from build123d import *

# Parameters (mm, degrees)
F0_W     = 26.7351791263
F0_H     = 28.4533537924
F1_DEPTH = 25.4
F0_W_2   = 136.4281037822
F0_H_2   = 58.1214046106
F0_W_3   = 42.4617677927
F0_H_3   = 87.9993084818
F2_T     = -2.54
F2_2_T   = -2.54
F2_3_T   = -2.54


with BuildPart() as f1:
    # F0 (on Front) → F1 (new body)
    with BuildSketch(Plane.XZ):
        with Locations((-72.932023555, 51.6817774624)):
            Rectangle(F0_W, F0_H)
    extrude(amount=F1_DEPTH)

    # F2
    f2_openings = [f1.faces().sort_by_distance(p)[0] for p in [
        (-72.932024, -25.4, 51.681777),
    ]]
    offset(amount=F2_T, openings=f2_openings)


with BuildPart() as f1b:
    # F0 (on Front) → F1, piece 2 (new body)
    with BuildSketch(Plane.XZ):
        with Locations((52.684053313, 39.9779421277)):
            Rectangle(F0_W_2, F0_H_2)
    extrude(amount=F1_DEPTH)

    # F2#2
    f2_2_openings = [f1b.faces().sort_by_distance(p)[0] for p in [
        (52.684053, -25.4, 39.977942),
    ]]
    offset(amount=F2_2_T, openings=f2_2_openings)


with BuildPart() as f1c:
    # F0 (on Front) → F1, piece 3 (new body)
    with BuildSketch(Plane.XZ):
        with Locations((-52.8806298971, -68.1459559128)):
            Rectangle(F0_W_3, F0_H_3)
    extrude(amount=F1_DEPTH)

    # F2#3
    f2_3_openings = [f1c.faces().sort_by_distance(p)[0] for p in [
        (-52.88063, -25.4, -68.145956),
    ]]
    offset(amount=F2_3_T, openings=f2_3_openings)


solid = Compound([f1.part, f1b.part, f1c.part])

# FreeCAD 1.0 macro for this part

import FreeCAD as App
import Part
import Sketcher
Q = App.Units.Quantity


def faces_at(feature, points):
    """Names of the faces that lie closest to the given points."""
    faces = feature.Shape.Faces
    near = lambda p: min(range(len(faces)), key=lambda i: faces[i].distToShape(Part.Vertex(*p))[0])
    return sorted({f"Face{near(p) + 1}" for p in points})


def add_polygon(sketch, points):
    """Adds a closed chain of lines whose ends are joined by coincident constraints."""
    first, n = sketch.GeometryCount, len(points)
    for a, b in zip(points, points[1:] + points[:1]):
        sketch.addGeometry(Part.LineSegment(App.Vector(*a, 0), App.Vector(*b, 0)), False)
    for i in range(n):
        sketch.addConstraint(Sketcher.Constraint("Coincident", first + i, 2, first + (i + 1) % n, 1))

doc = App.newDocument("Part")
body = doc.addObject("PartDesign::Body", "Body")

sketch1 = doc.addObject("Sketcher::SketchObject", "Sketch")
body.addObject(sketch1)
sketch1.AttachmentSupport = (doc.XZ_Plane, [""])
sketch1.MapMode = "FlatFace"
add_polygon(sketch1, [(-86.299613, 65.908454), (-86.299613, 37.455101), (-59.564434, 37.455101), (-59.564434, 65.908454)])
sketch1.addConstraint(Sketcher.Constraint("Vertical", 0))
sketch1.addConstraint(Sketcher.Constraint("Horizontal", 1))
sketch1.addConstraint(Sketcher.Constraint("Vertical", 2))
sketch1.addConstraint(Sketcher.Constraint("Horizontal", 3))
sketch1.addConstraint(Sketcher.Constraint("DistanceX", 1, 1, 1, 2, 26.735179))
sketch1.addConstraint(Sketcher.Constraint("DistanceY", -1, 1, 0, 2, 37.455101))
sketch1.addConstraint(Sketcher.Constraint("DistanceY", 0, 2, 0, 1, 28.453354))
sketch1.addConstraint(Sketcher.Constraint("DistanceX", 0, 2, -1, 1, 86.299613))
pad1 = doc.addObject("PartDesign::Pad", "Pad")
body.addObject(pad1)
pad1.Profile = sketch1
pad1.Length = Q("1 in")
doc.recompute()

thickness = doc.addObject("PartDesign::Thickness", "Thickness")
body.addObject(thickness)
thickness.Base = (pad1, faces_at(pad1, [(-72.932, -25.4, 51.682)]))
thickness.Value = Q("0.1 in")
thickness.Reversed = True
thickness.Join = "Arc"
body2 = doc.addObject("PartDesign::Body", "Body001")

sketch2 = doc.addObject("Sketcher::SketchObject", "Sketch001")
body2.addObject(sketch2)
sketch2.AttachmentSupport = (doc.getObject("XZ_Plane001"), [""])
sketch2.MapMode = "FlatFace"
add_polygon(sketch2, [(-15.529999, 69.038644), (-15.529999, 10.91724), (120.898105, 10.91724), (120.898105, 69.038644)])
sketch2.addConstraint(Sketcher.Constraint("Vertical", 0))
sketch2.addConstraint(Sketcher.Constraint("Horizontal", 1))
sketch2.addConstraint(Sketcher.Constraint("Vertical", 2))
sketch2.addConstraint(Sketcher.Constraint("Horizontal", 3))
sketch2.addConstraint(Sketcher.Constraint("DistanceX", 0, 2, -1, 1, 15.529999))
sketch2.addConstraint(Sketcher.Constraint("DistanceX", 1, 1, 1, 2, 136.428104))
sketch2.addConstraint(Sketcher.Constraint("DistanceY", 0, 2, 0, 1, 58.121405))
sketch2.addConstraint(Sketcher.Constraint("DistanceY", -1, 1, 0, 2, 10.91724))
pad2 = doc.addObject("PartDesign::Pad", "Pad001")
body2.addObject(pad2)
pad2.Profile = sketch2
pad2.Length = Q("1 in")
doc.recompute()

thickness2 = doc.addObject("PartDesign::Thickness", "Thickness001")
body2.addObject(thickness2)
thickness2.Base = (pad2, faces_at(pad2, [(52.684, -25.4, 39.978)]))
thickness2.Value = Q("0.1 in")
thickness2.Reversed = True
thickness2.Join = "Arc"
body3 = doc.addObject("PartDesign::Body", "Body002")

sketch3 = doc.addObject("Sketcher::SketchObject", "Sketch002")
body3.addObject(sketch3)
sketch3.AttachmentSupport = (doc.getObject("XZ_Plane002"), [""])
sketch3.MapMode = "FlatFace"
add_polygon(sketch3, [(-74.111514, -24.146302), (-74.111514, -112.14561), (-31.649746, -112.14561), (-31.649746, -24.146302)])
sketch3.addConstraint(Sketcher.Constraint("Vertical", 0))
sketch3.addConstraint(Sketcher.Constraint("Horizontal", 1))
sketch3.addConstraint(Sketcher.Constraint("Vertical", 2))
sketch3.addConstraint(Sketcher.Constraint("Horizontal", 3))
sketch3.addConstraint(Sketcher.Constraint("DistanceY", 0, 2, 0, 1, 87.999308))
sketch3.addConstraint(Sketcher.Constraint("DistanceY", 2, 2, -1, 1, 24.146302))
sketch3.addConstraint(Sketcher.Constraint("DistanceX", 1, 1, 1, 2, 42.461768))
sketch3.addConstraint(Sketcher.Constraint("DistanceX", 0, 2, -1, 1, 74.111514))
pad3 = doc.addObject("PartDesign::Pad", "Pad002")
body3.addObject(pad3)
pad3.Profile = sketch3
pad3.Length = Q("1 in")
doc.recompute()

thickness3 = doc.addObject("PartDesign::Thickness", "Thickness002")
body3.addObject(thickness3)
thickness3.Base = (pad3, faces_at(pad3, [(-52.881, -25.4, -68.146)]))
thickness3.Value = Q("0.1 in")
thickness3.Reversed = True
thickness3.Join = "Arc"

doc.recompute()
